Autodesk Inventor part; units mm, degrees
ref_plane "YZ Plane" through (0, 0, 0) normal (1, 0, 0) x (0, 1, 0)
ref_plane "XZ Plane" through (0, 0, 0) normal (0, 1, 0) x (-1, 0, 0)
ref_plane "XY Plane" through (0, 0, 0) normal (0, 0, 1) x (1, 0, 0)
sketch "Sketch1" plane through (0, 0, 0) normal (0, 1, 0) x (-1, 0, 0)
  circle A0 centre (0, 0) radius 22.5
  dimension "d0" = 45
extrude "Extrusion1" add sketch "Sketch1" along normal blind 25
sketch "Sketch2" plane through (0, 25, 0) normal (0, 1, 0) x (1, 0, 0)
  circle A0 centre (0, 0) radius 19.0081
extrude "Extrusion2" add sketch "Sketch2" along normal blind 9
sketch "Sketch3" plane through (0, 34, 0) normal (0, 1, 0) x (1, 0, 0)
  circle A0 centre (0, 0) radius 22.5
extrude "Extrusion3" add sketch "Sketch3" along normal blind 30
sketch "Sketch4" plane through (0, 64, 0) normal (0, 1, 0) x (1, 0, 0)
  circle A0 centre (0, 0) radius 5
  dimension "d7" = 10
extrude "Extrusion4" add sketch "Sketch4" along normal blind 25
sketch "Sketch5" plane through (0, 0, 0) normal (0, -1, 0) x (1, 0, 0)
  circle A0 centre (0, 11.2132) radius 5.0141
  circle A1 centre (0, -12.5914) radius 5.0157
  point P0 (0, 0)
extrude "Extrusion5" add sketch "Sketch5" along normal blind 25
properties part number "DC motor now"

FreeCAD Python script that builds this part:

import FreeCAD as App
import Part
import Sketcher
from FreeCAD import Vector
Q = App.Units.Quantity

doc = App.newDocument("Part")
body = doc.addObject("PartDesign::Body", "Body")

# Sketch on XZ plane
sketch1 = body.newObject("Sketcher::SketchObject", "Sketch")
sketch1.AttachmentSupport = (doc.getObject("XZ_Plane"), [""])
sketch1.MapMode = "FlatFace"
sketch1.addGeometry(Part.Circle(Vector(0, 0, 0), Vector(0, 0, 1), 22), False)
sketch1.addConstraint([
    Sketcher.Constraint("Coincident", 0, 3, -1, 1),
    Sketcher.Constraint("Diameter", 0, Q("45 mm")),
])
pad1 = body.newObject("PartDesign::Pad", "Pad")
pad1.Profile = sketch1
pad1.Length = 25
pad1.Reversed = True

# Sketch on XZ plane
sketch2 = body.newObject("Sketcher::SketchObject", "Sketch001")
sketch2.AttachmentSupport = (doc.getObject("XZ_Plane"), [""])
sketch2.MapMode = "FlatFace"
sketch2.AttachmentOffset = App.Placement(Vector(0, 0, -25), App.Rotation())
sketch2.addGeometry(Part.Circle(Vector(0, 0, 0), Vector(0, 0, 1), 19), False)
sketch2.addConstraint([
    Sketcher.Constraint("Coincident", 0, 3, -1, 1),
    Sketcher.Constraint("Diameter", 0, Q("38.0162 mm")),
])
pad2 = body.newObject("PartDesign::Pad", "Pad001")
pad2.Profile = sketch2
pad2.Length = 9
pad2.Reversed = True

# Sketch on XZ plane
sketch3 = body.newObject("Sketcher::SketchObject", "Sketch002")
sketch3.AttachmentSupport = (doc.getObject("XZ_Plane"), [""])
sketch3.MapMode = "FlatFace"
sketch3.AttachmentOffset = App.Placement(Vector(0, 0, -34), App.Rotation())
sketch3.addGeometry(Part.Circle(Vector(0, 0, 0), Vector(0, 0, 1), 22), False)
sketch3.addConstraint([
    Sketcher.Constraint("Coincident", 0, 3, -1, 1),
    Sketcher.Constraint("Diameter", 0, Q("45 mm")),
])
pad3 = body.newObject("PartDesign::Pad", "Pad002")
pad3.Profile = sketch3
pad3.Length = 30
pad3.Reversed = True

# Sketch on XZ plane
sketch4 = body.newObject("Sketcher::SketchObject", "Sketch003")
sketch4.AttachmentSupport = (doc.getObject("XZ_Plane"), [""])
sketch4.MapMode = "FlatFace"
sketch4.AttachmentOffset = App.Placement(Vector(0, 0, -64), App.Rotation())
sketch4.addGeometry(Part.Circle(Vector(0, 0, 0), Vector(0, 0, 1), 5), False)
sketch4.addConstraint([
    Sketcher.Constraint("Coincident", 0, 3, -1, 1),
    Sketcher.Constraint("Diameter", 0, Q("10 mm")),
])
pad4 = body.newObject("PartDesign::Pad", "Pad003")
pad4.Profile = sketch4
pad4.Length = 25
pad4.Reversed = True

# Sketch on XZ plane
sketch5 = body.newObject("Sketcher::SketchObject", "Sketch004")
sketch5.AttachmentSupport = (doc.getObject("XZ_Plane"), [""])
sketch5.MapMode = "FlatFace"
sketch5.addGeometry([
    Part.Circle(Vector(0, 11, 0), Vector(0, 0, 1), 5),
    Part.Circle(Vector(0, -13, 0), Vector(0, 0, 1), 5),
], False)
sketch5.addConstraint([
    Sketcher.Constraint("PointOnObject", 0, 3, -2),
    Sketcher.Constraint("PointOnObject", 1, 3, -2),
    Sketcher.Constraint("Diameter", 0, Q("10.0282 mm")),
    Sketcher.Constraint("Diameter", 1, Q("10.0314 mm")),
    Sketcher.Constraint("DistanceY", -1, 1, 0, 3, Q("11.2132 mm")),
    Sketcher.Constraint("DistanceY", 1, 3, -1, 1, Q("12.5914 mm")),
])
pad5 = body.newObject("PartDesign::Pad", "Pad004")
pad5.Profile = sketch5
pad5.Length = 25

doc.recompute()
